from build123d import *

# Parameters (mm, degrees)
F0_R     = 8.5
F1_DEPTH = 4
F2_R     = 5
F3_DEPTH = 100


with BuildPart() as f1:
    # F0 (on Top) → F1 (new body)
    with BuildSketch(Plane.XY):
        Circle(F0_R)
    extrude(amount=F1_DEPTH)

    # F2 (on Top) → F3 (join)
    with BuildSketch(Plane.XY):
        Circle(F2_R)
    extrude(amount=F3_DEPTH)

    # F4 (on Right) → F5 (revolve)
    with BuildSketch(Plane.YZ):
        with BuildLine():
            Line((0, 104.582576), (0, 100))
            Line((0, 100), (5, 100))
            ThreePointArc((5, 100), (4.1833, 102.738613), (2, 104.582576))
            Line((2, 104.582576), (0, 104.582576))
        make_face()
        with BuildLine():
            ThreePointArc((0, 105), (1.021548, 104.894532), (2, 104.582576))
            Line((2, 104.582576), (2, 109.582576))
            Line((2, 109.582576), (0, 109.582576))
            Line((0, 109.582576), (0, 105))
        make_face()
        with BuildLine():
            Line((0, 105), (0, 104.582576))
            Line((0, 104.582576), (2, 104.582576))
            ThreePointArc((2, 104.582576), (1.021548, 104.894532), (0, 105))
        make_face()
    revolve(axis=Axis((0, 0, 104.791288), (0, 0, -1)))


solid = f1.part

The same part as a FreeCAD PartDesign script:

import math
import FreeCAD as App
import Part
import Sketcher

V = App.Vector

doc = App.newDocument("Part")
body = doc.addObject("PartDesign::Body", "Body")

# Sketch on XY plane
sketch1 = body.newObject("Sketcher::SketchObject", "Sketch")
sketch1.AttachmentSupport = (doc.getObject("XY_Plane"), [""])
sketch1.MapMode = "FlatFace"
sketch1.addGeometry(Part.Circle(V(0, 0, 0), V(0, 0, 1), 8), False)
sketch1.addConstraint(Sketcher.Constraint("Coincident", 0, 3, -1, 1))
sketch1.addConstraint(Sketcher.Constraint("Diameter", 0, 17.0))
pad1 = body.newObject("PartDesign::Pad", "Pad")
pad1.Profile = sketch1
pad1.Length = 4

# Sketch on XY plane
sketch2 = body.newObject("Sketcher::SketchObject", "Sketch001")
sketch2.AttachmentSupport = (doc.getObject("XY_Plane"), [""])
sketch2.MapMode = "FlatFace"
sketch2.addGeometry(Part.Circle(V(0, 0, 0), V(0, 0, 1), 5), False)
sketch2.addConstraint(Sketcher.Constraint("Coincident", 0, 3, -1, 1))
sketch2.addConstraint(Sketcher.Constraint("Diameter", 0, 10.0))
pad2 = body.newObject("PartDesign::Pad", "Pad001")
pad2.Profile = sketch2
pad2.Length = 100

# Sketch on YZ plane
sketch3 = body.newObject("Sketcher::SketchObject", "Sketch002")
sketch3.AttachmentSupport = (doc.getObject("YZ_Plane"), [""])
sketch3.MapMode = "FlatFace"
sketch3.addGeometry(Part.LineSegment(V(0, 100, 0), V(5, 100, 0)), False)
sketch3.addGeometry(Part.ArcOfCircle(Part.Circle(V(0, 100, 0), V(0, 0, 1), 5), math.radians(0), math.radians(66)), False)
sketch3.addGeometry(Part.LineSegment(V(2, 104.6, 0), V(2, 109.6, 0)), False)
sketch3.addGeometry(Part.LineSegment(V(2, 109.6, 0), V(0, 109.6, 0)), False)
sketch3.addGeometry(Part.LineSegment(V(0, 109.6, 0), V(0, 100, 0)), False)
sketch3.addConstraint(Sketcher.Constraint("Coincident", 0, 2, 1, 1))
sketch3.addConstraint(Sketcher.Constraint("Coincident", 1, 2, 2, 1))
sketch3.addConstraint(Sketcher.Constraint("Coincident", 2, 2, 3, 1))
sketch3.addConstraint(Sketcher.Constraint("Coincident", 3, 2, 4, 1))
sketch3.addConstraint(Sketcher.Constraint("Coincident", 4, 2, 0, 1))
sketch3.addConstraint(Sketcher.Constraint("Horizontal", 0))
sketch3.addConstraint(Sketcher.Constraint("Vertical", 2))
sketch3.addConstraint(Sketcher.Constraint("Horizontal", 3))
sketch3.addConstraint(Sketcher.Constraint("Vertical", 4))
sketch3.addConstraint(Sketcher.Constraint("Coincident", 4, 2, 1, 3))
sketch3.addConstraint(Sketcher.Constraint("PointOnObject", 1, 3, -2))
sketch3.addConstraint(Sketcher.Constraint("Equal", 0, 2))
sketch3.addConstraint(Sketcher.Constraint("Radius", 1, 5.000001))
sketch3.addConstraint(Sketcher.Constraint("DistanceX", 3, 2, 3, 1, 2.0))
sketch3.addConstraint(Sketcher.Constraint("DistanceY", -1, 1, 1, 3, 100.0))
revolution = body.newObject("PartDesign::Revolution", "Revolution")
revolution.Profile = sketch3
revolution.ReferenceAxis = (sketch3, ["V_Axis"])
revolution.Angle = 360

doc.recompute()
